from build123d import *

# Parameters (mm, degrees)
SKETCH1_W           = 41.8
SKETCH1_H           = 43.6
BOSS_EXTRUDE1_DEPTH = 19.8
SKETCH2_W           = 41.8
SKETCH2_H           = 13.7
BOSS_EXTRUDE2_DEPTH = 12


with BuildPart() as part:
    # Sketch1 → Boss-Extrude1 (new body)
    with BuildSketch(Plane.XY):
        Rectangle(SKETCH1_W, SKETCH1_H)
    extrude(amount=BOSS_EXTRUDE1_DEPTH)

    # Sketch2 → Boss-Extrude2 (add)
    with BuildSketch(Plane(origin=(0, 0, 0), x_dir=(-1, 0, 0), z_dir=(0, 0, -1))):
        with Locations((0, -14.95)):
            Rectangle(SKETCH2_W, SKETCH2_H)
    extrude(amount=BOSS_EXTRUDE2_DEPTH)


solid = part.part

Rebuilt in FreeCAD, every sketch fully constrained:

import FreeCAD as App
import Part
import Sketcher


def add_polygon(sketch, points):
    """Adds a closed chain of lines whose ends are joined by coincident constraints."""
    first, n = sketch.GeometryCount, len(points)
    for a, b in zip(points, points[1:] + points[:1]):
        sketch.addGeometry(Part.LineSegment(App.Vector(*a, 0), App.Vector(*b, 0)), False)
    for i in range(n):
        sketch.addConstraint(Sketcher.Constraint("Coincident", first + i, 2, first + (i + 1) % n, 1))

doc = App.newDocument("Part")
params = doc.addObject("Spreadsheet::Sheet", "Params")
for row, (alias, value) in enumerate([
    ("sketch1_width", "41.8 mm"),
    ("sketch1_height", "43.6 mm"),
    ("pad1_length", "19.8 mm"),
    ("sketch2_width", "41.8 mm"),
    ("sketch2_height", "13.7 mm"),
    ("pad2_length", "12 mm"),
], start=1):
    params.set(f"A{row}", alias)
    params.set(f"B{row}", "=" + value)
    params.setAlias(f"B{row}", alias)

body = doc.addObject("PartDesign::Body", "Body")

# Sketch on XY plane
sketch1 = body.newObject("Sketcher::SketchObject", "Sketch")
sketch1.AttachmentSupport = (doc.getObject("XY_Plane"), [""])
sketch1.MapMode = "FlatFace"
add_polygon(sketch1, [(-21, 22), (-21, -22), (21, -22), (21, 22)])  # lines 0-3
sketch1.addConstraint(Sketcher.Constraint("Vertical", 0))
sketch1.addConstraint(Sketcher.Constraint("Horizontal", 1))
sketch1.addConstraint(Sketcher.Constraint("Vertical", 2))
sketch1.addConstraint(Sketcher.Constraint("Horizontal", 3))
sketch1.addConstraint(Sketcher.Constraint("Symmetric", 0, 2, 2, 2, -1, 1))
sketch1.addConstraint(Sketcher.Constraint("DistanceX", 1, 1, 1, 2, 41.8))
sketch1.addConstraint(Sketcher.Constraint("DistanceY", 0, 2, 0, 1, 43.6))
sketch1.setExpression("Constraints[9]", "Params.sketch1_width")
sketch1.setExpression("Constraints[10]", "Params.sketch1_height")
pad1 = body.newObject("PartDesign::Pad", "Pad")
pad1.Profile = sketch1
pad1.setExpression("Length", "Params.pad1_length")

# Sketch on XY plane
sketch2 = body.newObject("Sketcher::SketchObject", "Sketch001")
sketch2.AttachmentSupport = (doc.getObject("XY_Plane"), [""])
sketch2.MapMode = "FlatFace"
add_polygon(sketch2, [(21, -8), (21, -22), (-21, -22), (-21, -8)])  # lines 0-3
sketch2.addConstraint(Sketcher.Constraint("Vertical", 0))
sketch2.addConstraint(Sketcher.Constraint("Horizontal", 1))
sketch2.addConstraint(Sketcher.Constraint("Vertical", 2))
sketch2.addConstraint(Sketcher.Constraint("Horizontal", 3))
sketch2.addConstraint(Sketcher.Constraint("DistanceX", 1, 2, 1, 1, 41.8))
sketch2.addConstraint(Sketcher.Constraint("DistanceY", 0, 2, 0, 1, 13.7))
sketch2.addConstraint(Sketcher.Constraint("DistanceX", -1, 1, 0, 2, 20.9))
sketch2.addConstraint(Sketcher.Constraint("DistanceY", 0, 2, -1, 1, 21.8))
sketch2.setExpression("Constraints[8]", "Params.sketch2_width")
sketch2.setExpression("Constraints[9]", "Params.sketch2_height")
pad2 = body.newObject("PartDesign::Pad", "Pad001")
pad2.Profile = sketch2
pad2.setExpression("Length", "Params.pad2_length")
pad2.Reversed = True

doc.recompute()
